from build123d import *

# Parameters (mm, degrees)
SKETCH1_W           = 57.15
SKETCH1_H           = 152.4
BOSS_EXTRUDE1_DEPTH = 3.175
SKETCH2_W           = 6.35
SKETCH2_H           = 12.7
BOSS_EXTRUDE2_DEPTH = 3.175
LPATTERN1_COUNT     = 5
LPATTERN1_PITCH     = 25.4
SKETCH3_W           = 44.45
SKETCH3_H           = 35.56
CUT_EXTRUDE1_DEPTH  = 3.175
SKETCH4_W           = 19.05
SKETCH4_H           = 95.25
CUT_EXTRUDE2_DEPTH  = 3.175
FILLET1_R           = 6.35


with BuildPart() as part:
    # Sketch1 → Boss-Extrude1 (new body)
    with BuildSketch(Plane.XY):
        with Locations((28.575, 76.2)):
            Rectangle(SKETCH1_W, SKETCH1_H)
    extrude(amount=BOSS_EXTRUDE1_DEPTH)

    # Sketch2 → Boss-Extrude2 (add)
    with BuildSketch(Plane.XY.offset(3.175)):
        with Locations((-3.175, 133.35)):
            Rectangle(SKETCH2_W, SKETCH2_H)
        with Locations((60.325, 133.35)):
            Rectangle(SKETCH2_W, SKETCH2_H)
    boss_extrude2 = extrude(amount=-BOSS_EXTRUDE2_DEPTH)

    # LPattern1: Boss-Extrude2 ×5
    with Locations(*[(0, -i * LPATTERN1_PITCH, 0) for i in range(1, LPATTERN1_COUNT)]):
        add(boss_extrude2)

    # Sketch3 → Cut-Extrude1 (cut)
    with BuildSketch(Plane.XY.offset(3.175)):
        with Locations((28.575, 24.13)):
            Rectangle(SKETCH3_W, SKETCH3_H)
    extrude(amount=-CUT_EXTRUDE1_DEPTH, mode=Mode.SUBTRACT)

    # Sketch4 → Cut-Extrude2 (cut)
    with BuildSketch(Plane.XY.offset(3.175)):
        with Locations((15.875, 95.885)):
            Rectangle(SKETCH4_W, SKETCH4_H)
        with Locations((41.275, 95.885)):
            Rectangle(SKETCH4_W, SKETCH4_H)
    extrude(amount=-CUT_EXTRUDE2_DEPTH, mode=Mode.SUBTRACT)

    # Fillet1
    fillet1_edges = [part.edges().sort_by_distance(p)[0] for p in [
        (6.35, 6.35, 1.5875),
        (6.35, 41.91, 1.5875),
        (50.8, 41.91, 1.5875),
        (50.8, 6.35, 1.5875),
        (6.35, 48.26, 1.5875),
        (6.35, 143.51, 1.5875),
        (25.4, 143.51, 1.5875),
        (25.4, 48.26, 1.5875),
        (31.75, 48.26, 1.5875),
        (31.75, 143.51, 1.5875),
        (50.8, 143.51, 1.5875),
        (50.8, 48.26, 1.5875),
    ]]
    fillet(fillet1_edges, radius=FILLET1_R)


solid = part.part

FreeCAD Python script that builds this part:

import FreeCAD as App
import Part
import Sketcher
from FreeCAD import Vector
Q = App.Units.Quantity


def edges_at(feature, points):
    """Names of the edges that pass closest to the given points."""
    edges = feature.Shape.Edges
    near = lambda p: min(range(len(edges)), key=lambda i: edges[i].distToShape(Part.Vertex(*p))[0])
    return sorted({f"Edge{near(p) + 1}" for p in points})


def add_polygon(sketch, points):
    """Adds a closed chain of lines whose ends are joined by coincident constraints."""
    first, n = sketch.GeometryCount, len(points)
    for a, b in zip(points, points[1:] + points[:1]):
        sketch.addGeometry(Part.LineSegment(App.Vector(*a, 0), App.Vector(*b, 0)), False)
    for i in range(n):
        sketch.addConstraint(Sketcher.Constraint("Coincident", first + i, 2, first + (i + 1) % n, 1))

doc = App.newDocument("Part")
body = doc.addObject("PartDesign::Body", "Body")

# Sketch on XY plane
sketch1 = doc.addObject("Sketcher::SketchObject", "Sketch")
body.addObject(sketch1)
sketch1.AttachmentSupport = (doc.XY_Plane, [""])
sketch1.MapMode = "FlatFace"
add_polygon(sketch1, [(0, 152), (0, 0), (57, 0), (57, 152)])  # lines 0-3
sketch1.addConstraint(Sketcher.Constraint("Vertical", 0))
sketch1.addConstraint(Sketcher.Constraint("Horizontal", 1))
sketch1.addConstraint(Sketcher.Constraint("Vertical", 2))
sketch1.addConstraint(Sketcher.Constraint("Horizontal", 3))
sketch1.addConstraint(Sketcher.Constraint("Coincident", 0, 2, -1, 1))
sketch1.addConstraint(Sketcher.Constraint("DistanceY", 0, 2, 0, 1, Q("6 in")))
sketch1.addConstraint(Sketcher.Constraint("DistanceX", 1, 1, 1, 2, Q("2.25 in")))
pad1 = doc.addObject("PartDesign::Pad", "Pad")
body.addObject(pad1)
pad1.Profile = sketch1
pad1.Length = Q("0.125 in")

# Sketch on XY plane
sketch2 = doc.addObject("Sketcher::SketchObject", "Sketch001")
body.addObject(sketch2)
sketch2.AttachmentSupport = (doc.XY_Plane, [""])
sketch2.MapMode = "FlatFace"
sketch2.AttachmentOffset = App.Placement(Vector(0, 0, 0.125 * 25.4), App.Rotation())
add_polygon(sketch2, [(-6, 140), (-6, 127), (0, 127), (0, 140)])  # lines 0-3
add_polygon(sketch2, [(57, 140), (57, 127), (64, 127), (64, 140)])  # lines 4-7
sketch2.addConstraint(Sketcher.Constraint("Vertical", 0))
sketch2.addConstraint(Sketcher.Constraint("Horizontal", 1))
sketch2.addConstraint(Sketcher.Constraint("Vertical", 2))
sketch2.addConstraint(Sketcher.Constraint("Horizontal", 3))
sketch2.addConstraint(Sketcher.Constraint("Vertical", 4))
sketch2.addConstraint(Sketcher.Constraint("Horizontal", 5))
sketch2.addConstraint(Sketcher.Constraint("Vertical", 6))
sketch2.addConstraint(Sketcher.Constraint("Horizontal", 7))
sketch2.addConstraint(Sketcher.Constraint("PointOnObject", 1, 2, -2))
sketch2.addConstraint(Sketcher.Constraint("Horizontal", 1, 2, 4, 2))
sketch2.addConstraint(Sketcher.Constraint("Horizontal", 3, 2, 6, 2))
sketch2.addConstraint(Sketcher.Constraint("Equal", 3, 5))
sketch2.addConstraint(Sketcher.Constraint("DistanceY", 0, 2, 0, 1, Q("0.5 in")))
sketch2.addConstraint(Sketcher.Constraint("DistanceY", -1, 1, 0, 2, Q("5 in")))
sketch2.addConstraint(Sketcher.Constraint("DistanceX", 1, 1, 1, 2, Q("0.25 in")))
sketch2.addConstraint(Sketcher.Constraint("DistanceX", -1, 1, 5, 2, Q("2.5 in")))
pad2 = doc.addObject("PartDesign::Pad", "Pad001")
body.addObject(pad2)
pad2.Profile = sketch2
pad2.Length = Q("0.125 in")
pad2.Reversed = True
doc.recompute()

linearpattern = doc.addObject("PartDesign::LinearPattern", "LinearPattern")
body.addObject(linearpattern)
linearpattern.Originals = [pad2]
linearpattern.Direction = (doc.Y_Axis, [""])
linearpattern.Mode = "offset"
linearpattern.Offset = Q("1 in")
linearpattern.Occurrences = 5
linearpattern.Reversed = True
body.Tip = linearpattern

# Sketch on XY plane
sketch3 = doc.addObject("Sketcher::SketchObject", "Sketch002")
body.addObject(sketch3)
sketch3.AttachmentSupport = (doc.XY_Plane, [""])
sketch3.MapMode = "FlatFace"
sketch3.AttachmentOffset = App.Placement(Vector(0, 0, 0.125 * 25.4), App.Rotation())
add_polygon(sketch3, [(6, 42), (6, 6), (51, 6), (51, 42)])  # lines 0-3
sketch3.addConstraint(Sketcher.Constraint("Vertical", 0))
sketch3.addConstraint(Sketcher.Constraint("Horizontal", 1))
sketch3.addConstraint(Sketcher.Constraint("Vertical", 2))
sketch3.addConstraint(Sketcher.Constraint("Horizontal", 3))
sketch3.addConstraint(Sketcher.Constraint("DistanceY", 0, 2, 0, 1, Q("1.4 in")))
sketch3.addConstraint(Sketcher.Constraint("DistanceX", -1, 1, 1, 2, Q("2 in")))
sketch3.addConstraint(Sketcher.Constraint("DistanceX", 1, 1, 1, 2, Q("1.75 in")))
sketch3.addConstraint(Sketcher.Constraint("DistanceY", -1, 1, 0, 2, Q("0.25 in")))
pocket1 = doc.addObject("PartDesign::Pocket", "Pocket")
body.addObject(pocket1)
pocket1.Profile = sketch3
pocket1.Length = Q("0.125 in")

# Sketch on XY plane
sketch4 = doc.addObject("Sketcher::SketchObject", "Sketch003")
body.addObject(sketch4)
sketch4.AttachmentSupport = (doc.XY_Plane, [""])
sketch4.MapMode = "FlatFace"
sketch4.AttachmentOffset = App.Placement(Vector(0, 0, 0.125 * 25.4), App.Rotation())
add_polygon(sketch4, [(6, 144), (6, 48), (25, 48), (25, 144)])  # lines 0-3
add_polygon(sketch4, [(32, 144), (32, 48), (51, 48), (51, 144)])  # lines 4-7
sketch4.addConstraint(Sketcher.Constraint("Vertical", 0))
sketch4.addConstraint(Sketcher.Constraint("Horizontal", 1))
sketch4.addConstraint(Sketcher.Constraint("Vertical", 2))
sketch4.addConstraint(Sketcher.Constraint("Horizontal", 3))
sketch4.addConstraint(Sketcher.Constraint("Vertical", 4))
sketch4.addConstraint(Sketcher.Constraint("Horizontal", 5))
sketch4.addConstraint(Sketcher.Constraint("Vertical", 6))
sketch4.addConstraint(Sketcher.Constraint("Horizontal", 7))
sketch4.addConstraint(Sketcher.Constraint("Horizontal", 1, 2, 4, 2))
sketch4.addConstraint(Sketcher.Constraint("Horizontal", 3, 2, 6, 2))
sketch4.addConstraint(Sketcher.Constraint("Equal", 3, 5))
sketch4.addConstraint(Sketcher.Constraint("DistanceX", -1, 1, 1, 2, Q("1 in")))
sketch4.addConstraint(Sketcher.Constraint("DistanceX", -1, 1, 5, 2, Q("2 in")))
sketch4.addConstraint(Sketcher.Constraint("DistanceX", 1, 1, 1, 2, Q("0.75 in")))
sketch4.addConstraint(Sketcher.Constraint("DistanceY", 0, 2, 0, 1, Q("3.75 in")))
sketch4.addConstraint(Sketcher.Constraint("DistanceY", -1, 1, 0, 2, Q("1.9 in")))
pocket2 = doc.addObject("PartDesign::Pocket", "Pocket001")
body.addObject(pocket2)
pocket2.Profile = sketch4
pocket2.Length = Q("0.125 in")
doc.recompute()

fillet = doc.addObject("PartDesign::Fillet", "Fillet")
body.addObject(fillet)
fillet.Base = (pocket2, edges_at(pocket2, [
    (6.35, 6.35, 1.587),
    (6.35, 41.91, 1.587),
    (50.8, 41.91, 1.587),
    (50.8, 6.35, 1.587),
    (6.35, 48.26, 1.587),
    (6.35, 143.51, 1.587),
    (25.4, 143.51, 1.587),
    (25.4, 48.26, 1.587),
    (31.75, 48.26, 1.587),
    (31.75, 143.51, 1.587),
    (50.8, 143.51, 1.587),
    (50.8, 48.26, 1.587),
]))
fillet.Radius = Q("0.25 in")

doc.recompute()
